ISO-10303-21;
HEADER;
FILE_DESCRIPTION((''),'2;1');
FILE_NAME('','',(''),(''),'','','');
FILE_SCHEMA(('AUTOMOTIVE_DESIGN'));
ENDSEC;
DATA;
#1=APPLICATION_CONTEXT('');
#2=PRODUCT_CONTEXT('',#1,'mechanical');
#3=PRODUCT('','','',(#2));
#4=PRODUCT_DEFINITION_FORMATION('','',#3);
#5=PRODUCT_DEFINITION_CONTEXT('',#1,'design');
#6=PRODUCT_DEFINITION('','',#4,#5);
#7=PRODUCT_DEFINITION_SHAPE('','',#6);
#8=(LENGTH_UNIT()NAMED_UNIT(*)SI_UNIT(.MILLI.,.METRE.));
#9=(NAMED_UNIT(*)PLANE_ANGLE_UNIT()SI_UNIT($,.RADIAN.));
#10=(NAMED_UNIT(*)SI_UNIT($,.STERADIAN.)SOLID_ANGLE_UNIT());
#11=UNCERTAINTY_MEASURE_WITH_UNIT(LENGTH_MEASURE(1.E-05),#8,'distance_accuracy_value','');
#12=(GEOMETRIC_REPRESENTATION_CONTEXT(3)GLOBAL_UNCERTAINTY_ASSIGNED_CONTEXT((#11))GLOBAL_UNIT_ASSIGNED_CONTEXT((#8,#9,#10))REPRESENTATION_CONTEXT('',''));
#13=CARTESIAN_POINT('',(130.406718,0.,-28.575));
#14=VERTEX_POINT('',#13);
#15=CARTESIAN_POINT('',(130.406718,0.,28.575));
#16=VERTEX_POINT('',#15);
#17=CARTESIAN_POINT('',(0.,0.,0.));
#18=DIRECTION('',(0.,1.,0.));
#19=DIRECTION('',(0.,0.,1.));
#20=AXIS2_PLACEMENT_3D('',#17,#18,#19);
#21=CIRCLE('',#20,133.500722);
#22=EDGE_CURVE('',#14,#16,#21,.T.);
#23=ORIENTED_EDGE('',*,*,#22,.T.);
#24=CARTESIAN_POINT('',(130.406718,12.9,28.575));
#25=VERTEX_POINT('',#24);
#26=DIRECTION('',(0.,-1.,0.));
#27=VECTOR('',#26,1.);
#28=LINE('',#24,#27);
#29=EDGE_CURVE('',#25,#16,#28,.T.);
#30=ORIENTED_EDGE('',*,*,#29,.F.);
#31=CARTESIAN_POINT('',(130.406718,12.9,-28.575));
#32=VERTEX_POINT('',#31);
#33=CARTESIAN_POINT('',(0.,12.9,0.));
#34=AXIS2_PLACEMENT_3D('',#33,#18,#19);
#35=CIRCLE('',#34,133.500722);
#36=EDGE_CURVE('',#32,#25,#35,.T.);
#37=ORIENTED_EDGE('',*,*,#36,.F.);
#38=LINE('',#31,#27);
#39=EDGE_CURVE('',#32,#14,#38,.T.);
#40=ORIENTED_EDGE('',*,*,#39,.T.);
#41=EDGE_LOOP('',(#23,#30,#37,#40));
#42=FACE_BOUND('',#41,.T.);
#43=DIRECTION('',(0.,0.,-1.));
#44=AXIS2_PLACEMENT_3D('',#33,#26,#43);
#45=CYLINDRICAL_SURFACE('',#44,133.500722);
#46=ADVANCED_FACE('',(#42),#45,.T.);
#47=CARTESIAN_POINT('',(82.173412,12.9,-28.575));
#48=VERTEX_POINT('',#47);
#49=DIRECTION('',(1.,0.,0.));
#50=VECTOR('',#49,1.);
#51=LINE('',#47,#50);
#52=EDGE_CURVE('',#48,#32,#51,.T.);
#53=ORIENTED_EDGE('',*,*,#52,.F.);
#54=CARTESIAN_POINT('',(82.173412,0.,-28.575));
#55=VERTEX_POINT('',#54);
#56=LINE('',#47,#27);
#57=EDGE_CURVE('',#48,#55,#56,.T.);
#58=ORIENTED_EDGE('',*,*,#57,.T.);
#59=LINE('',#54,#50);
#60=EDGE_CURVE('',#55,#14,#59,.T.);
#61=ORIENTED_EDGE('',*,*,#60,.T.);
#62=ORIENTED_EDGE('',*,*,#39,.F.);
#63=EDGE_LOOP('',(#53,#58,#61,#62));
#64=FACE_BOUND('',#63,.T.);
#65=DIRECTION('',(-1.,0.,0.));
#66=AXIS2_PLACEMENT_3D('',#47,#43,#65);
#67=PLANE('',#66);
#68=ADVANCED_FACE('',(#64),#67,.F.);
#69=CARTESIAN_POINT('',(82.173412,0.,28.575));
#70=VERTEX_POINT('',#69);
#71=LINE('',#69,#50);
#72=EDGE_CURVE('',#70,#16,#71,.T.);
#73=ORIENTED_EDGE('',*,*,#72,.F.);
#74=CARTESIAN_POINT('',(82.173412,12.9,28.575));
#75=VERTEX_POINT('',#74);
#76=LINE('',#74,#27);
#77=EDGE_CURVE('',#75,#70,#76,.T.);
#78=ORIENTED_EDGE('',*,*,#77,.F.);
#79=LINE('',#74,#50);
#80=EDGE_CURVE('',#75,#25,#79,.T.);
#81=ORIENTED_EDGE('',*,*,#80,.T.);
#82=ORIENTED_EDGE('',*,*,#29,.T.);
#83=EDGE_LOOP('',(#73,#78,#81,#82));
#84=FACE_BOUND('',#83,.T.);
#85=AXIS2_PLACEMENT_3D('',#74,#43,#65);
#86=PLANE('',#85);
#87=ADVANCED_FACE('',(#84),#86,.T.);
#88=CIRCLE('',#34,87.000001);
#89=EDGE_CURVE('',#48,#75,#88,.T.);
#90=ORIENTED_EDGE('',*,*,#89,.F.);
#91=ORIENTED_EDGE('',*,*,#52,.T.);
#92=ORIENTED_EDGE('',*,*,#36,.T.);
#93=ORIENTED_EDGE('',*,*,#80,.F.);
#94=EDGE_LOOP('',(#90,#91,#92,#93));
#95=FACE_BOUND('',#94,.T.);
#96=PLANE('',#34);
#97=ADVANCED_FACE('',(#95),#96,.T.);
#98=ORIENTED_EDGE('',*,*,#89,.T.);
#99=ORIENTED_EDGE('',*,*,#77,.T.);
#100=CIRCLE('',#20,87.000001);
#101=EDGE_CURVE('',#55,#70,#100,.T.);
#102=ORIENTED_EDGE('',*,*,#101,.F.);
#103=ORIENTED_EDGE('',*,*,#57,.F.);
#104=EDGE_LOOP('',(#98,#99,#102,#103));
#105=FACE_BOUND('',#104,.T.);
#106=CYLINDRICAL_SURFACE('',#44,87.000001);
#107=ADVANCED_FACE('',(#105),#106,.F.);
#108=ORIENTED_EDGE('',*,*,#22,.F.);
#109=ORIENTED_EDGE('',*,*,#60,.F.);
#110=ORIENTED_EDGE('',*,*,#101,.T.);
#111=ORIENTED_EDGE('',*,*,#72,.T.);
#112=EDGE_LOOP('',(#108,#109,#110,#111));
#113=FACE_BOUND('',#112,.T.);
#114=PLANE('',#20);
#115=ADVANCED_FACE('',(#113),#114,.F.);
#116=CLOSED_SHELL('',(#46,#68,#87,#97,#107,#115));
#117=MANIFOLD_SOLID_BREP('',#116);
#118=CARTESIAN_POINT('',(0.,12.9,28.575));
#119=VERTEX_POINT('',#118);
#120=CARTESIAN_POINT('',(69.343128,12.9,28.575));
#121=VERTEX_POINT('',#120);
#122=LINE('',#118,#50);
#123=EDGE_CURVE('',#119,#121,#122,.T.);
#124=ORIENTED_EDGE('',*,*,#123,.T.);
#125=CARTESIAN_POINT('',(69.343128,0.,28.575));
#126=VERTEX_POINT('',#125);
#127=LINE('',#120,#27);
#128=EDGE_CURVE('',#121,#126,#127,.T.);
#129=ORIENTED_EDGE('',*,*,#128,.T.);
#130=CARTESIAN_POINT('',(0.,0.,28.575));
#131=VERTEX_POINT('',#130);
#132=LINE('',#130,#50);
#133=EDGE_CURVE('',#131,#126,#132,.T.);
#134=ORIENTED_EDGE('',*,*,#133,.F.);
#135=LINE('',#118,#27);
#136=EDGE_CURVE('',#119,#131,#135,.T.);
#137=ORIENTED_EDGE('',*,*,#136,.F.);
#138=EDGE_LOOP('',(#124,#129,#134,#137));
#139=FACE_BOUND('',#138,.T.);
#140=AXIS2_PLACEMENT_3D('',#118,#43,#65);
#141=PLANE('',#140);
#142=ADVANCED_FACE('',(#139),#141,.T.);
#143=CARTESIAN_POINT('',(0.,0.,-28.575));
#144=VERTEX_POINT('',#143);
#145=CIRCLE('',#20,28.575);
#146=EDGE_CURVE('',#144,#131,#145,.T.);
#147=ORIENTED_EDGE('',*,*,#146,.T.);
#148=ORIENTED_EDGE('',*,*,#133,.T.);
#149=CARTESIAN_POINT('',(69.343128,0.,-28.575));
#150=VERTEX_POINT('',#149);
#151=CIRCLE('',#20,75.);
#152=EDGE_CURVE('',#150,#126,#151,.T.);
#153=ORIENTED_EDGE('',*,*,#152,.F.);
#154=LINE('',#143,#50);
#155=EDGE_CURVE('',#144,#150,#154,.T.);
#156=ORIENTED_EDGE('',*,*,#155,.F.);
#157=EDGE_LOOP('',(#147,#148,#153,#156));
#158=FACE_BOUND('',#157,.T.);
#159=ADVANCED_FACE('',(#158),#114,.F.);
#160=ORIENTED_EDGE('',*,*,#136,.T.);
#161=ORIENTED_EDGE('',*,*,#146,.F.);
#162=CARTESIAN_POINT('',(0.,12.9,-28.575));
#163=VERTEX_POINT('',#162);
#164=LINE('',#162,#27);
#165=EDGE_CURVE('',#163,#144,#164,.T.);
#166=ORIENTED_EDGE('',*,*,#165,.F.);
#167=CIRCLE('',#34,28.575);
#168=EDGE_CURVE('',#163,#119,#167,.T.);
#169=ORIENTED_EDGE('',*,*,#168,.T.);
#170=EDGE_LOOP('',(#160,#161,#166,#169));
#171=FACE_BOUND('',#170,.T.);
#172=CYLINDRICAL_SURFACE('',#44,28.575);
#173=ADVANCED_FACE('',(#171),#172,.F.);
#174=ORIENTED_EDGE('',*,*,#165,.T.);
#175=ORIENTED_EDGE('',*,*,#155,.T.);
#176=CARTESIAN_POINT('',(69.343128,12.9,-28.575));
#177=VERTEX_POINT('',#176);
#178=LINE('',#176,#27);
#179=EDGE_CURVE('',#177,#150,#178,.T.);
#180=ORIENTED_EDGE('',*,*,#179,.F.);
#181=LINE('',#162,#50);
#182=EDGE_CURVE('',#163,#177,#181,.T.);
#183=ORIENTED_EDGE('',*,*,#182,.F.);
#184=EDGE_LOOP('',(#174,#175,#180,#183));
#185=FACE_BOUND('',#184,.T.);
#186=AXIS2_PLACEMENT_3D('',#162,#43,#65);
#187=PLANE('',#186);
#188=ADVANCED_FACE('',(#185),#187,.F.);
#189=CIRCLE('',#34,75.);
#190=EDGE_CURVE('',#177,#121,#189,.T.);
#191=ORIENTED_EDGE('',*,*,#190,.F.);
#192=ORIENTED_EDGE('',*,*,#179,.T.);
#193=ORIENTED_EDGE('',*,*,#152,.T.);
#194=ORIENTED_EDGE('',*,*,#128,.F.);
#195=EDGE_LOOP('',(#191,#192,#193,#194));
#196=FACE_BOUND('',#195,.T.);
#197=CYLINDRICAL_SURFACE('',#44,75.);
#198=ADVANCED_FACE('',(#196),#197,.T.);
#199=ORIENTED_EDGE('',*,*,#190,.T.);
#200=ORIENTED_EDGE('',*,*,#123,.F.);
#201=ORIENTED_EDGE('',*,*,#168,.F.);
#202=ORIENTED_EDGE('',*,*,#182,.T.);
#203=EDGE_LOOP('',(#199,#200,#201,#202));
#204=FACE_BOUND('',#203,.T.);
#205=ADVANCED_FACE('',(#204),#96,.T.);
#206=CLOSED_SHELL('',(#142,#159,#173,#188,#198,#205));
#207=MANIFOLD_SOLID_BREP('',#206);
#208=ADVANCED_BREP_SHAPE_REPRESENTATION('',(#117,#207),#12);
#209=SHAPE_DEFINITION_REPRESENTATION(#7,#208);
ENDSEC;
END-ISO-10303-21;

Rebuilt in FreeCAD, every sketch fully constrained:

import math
import FreeCAD as App
import Part
import Sketcher

V = App.Vector

doc = App.newDocument("Part")
body = doc.addObject("PartDesign::Body", "Body")

sketch1 = body.newObject("Sketcher::SketchObject", "Sketch")
sketch1.AttachmentSupport = (doc.getObject("XZ_Plane"), [""])
sketch1.MapMode = "FlatFace"
sketch1.addGeometry([
    Part.LineSegment(V(0, -29, 0), V(69, -29, 0)),
    Part.ArcOfCircle(Part.Circle(V(0, 0, 0), V(0, 0, 1), 75), math.radians(22), math.radians(338)),
    Part.LineSegment(V(69, 29, 0), V(0, 29, 0)),
    Part.ArcOfCircle(Part.Circle(V(0, 0, 0), V(0, 0, 1), 29), math.radians(90), math.radians(270)),
], False)
sketch1.addConstraint([
    Sketcher.Constraint("Coincident", 0, 2, 1, 2),
    Sketcher.Constraint("Coincident", 1, 1, 2, 1),
    Sketcher.Constraint("Tangent", 2, 2, 3, 1),
    Sketcher.Constraint("Tangent", 3, 2, 0, 1),
    Sketcher.Constraint("Horizontal", 0),
    Sketcher.Constraint("Horizontal", 2),
    Sketcher.Constraint("Coincident", 1, 3, -1, 1),
    Sketcher.Constraint("Coincident", 3, 3, -1, 1),
    Sketcher.Constraint("Radius", 1, 75.0),
    Sketcher.Constraint("Radius", 3, 28.575),
])
pad1 = body.newObject("PartDesign::Pad", "Pad")
pad1.Profile = sketch1
pad1.Length = 12.9
pad1.Reversed = True
body2 = doc.addObject("PartDesign::Body", "Body001")

sketch2 = body2.newObject("Sketcher::SketchObject", "Sketch001")
sketch2.AttachmentSupport = (doc.getObject("XZ_Plane001"), [""])
sketch2.MapMode = "FlatFace"
sketch2.addGeometry([
    Part.LineSegment(V(130, 29, 0), V(82, 29, 0)),
    Part.ArcOfCircle(Part.Circle(V(0, 0, 0), V(0, 0, 1), 87), math.radians(19), math.radians(341)),
    Part.LineSegment(V(82, -29, 0), V(130, -29, 0)),
    Part.ArcOfCircle(Part.Circle(V(0, 0, 0), V(0, 0, 1), 134), math.radians(12), math.radians(348)),
], False)
sketch2.addConstraint([
    Sketcher.Constraint("Coincident", 0, 2, 1, 1),
    Sketcher.Constraint("Coincident", 1, 2, 2, 1),
    Sketcher.Constraint("Coincident", 2, 2, 3, 2),
    Sketcher.Constraint("Coincident", 3, 1, 0, 1),
    Sketcher.Constraint("Horizontal", 0),
    Sketcher.Constraint("Horizontal", 2),
    Sketcher.Constraint("Coincident", 1, 3, -1, 1),
    Sketcher.Constraint("Coincident", 3, 3, -1, 1),
    Sketcher.Constraint("Vertical", 0, 2, 1, 2),
    Sketcher.Constraint("Radius", 1, 87.000001),
    Sketcher.Constraint("DistanceY", 1, 2, 0, 2, 57.15),
    Sketcher.Constraint("Radius", 3, 133.500722),
])
pad2 = body2.newObject("PartDesign::Pad", "Pad001")
pad2.Profile = sketch2
pad2.Length = 12.9
pad2.Reversed = True

doc.recompute()
